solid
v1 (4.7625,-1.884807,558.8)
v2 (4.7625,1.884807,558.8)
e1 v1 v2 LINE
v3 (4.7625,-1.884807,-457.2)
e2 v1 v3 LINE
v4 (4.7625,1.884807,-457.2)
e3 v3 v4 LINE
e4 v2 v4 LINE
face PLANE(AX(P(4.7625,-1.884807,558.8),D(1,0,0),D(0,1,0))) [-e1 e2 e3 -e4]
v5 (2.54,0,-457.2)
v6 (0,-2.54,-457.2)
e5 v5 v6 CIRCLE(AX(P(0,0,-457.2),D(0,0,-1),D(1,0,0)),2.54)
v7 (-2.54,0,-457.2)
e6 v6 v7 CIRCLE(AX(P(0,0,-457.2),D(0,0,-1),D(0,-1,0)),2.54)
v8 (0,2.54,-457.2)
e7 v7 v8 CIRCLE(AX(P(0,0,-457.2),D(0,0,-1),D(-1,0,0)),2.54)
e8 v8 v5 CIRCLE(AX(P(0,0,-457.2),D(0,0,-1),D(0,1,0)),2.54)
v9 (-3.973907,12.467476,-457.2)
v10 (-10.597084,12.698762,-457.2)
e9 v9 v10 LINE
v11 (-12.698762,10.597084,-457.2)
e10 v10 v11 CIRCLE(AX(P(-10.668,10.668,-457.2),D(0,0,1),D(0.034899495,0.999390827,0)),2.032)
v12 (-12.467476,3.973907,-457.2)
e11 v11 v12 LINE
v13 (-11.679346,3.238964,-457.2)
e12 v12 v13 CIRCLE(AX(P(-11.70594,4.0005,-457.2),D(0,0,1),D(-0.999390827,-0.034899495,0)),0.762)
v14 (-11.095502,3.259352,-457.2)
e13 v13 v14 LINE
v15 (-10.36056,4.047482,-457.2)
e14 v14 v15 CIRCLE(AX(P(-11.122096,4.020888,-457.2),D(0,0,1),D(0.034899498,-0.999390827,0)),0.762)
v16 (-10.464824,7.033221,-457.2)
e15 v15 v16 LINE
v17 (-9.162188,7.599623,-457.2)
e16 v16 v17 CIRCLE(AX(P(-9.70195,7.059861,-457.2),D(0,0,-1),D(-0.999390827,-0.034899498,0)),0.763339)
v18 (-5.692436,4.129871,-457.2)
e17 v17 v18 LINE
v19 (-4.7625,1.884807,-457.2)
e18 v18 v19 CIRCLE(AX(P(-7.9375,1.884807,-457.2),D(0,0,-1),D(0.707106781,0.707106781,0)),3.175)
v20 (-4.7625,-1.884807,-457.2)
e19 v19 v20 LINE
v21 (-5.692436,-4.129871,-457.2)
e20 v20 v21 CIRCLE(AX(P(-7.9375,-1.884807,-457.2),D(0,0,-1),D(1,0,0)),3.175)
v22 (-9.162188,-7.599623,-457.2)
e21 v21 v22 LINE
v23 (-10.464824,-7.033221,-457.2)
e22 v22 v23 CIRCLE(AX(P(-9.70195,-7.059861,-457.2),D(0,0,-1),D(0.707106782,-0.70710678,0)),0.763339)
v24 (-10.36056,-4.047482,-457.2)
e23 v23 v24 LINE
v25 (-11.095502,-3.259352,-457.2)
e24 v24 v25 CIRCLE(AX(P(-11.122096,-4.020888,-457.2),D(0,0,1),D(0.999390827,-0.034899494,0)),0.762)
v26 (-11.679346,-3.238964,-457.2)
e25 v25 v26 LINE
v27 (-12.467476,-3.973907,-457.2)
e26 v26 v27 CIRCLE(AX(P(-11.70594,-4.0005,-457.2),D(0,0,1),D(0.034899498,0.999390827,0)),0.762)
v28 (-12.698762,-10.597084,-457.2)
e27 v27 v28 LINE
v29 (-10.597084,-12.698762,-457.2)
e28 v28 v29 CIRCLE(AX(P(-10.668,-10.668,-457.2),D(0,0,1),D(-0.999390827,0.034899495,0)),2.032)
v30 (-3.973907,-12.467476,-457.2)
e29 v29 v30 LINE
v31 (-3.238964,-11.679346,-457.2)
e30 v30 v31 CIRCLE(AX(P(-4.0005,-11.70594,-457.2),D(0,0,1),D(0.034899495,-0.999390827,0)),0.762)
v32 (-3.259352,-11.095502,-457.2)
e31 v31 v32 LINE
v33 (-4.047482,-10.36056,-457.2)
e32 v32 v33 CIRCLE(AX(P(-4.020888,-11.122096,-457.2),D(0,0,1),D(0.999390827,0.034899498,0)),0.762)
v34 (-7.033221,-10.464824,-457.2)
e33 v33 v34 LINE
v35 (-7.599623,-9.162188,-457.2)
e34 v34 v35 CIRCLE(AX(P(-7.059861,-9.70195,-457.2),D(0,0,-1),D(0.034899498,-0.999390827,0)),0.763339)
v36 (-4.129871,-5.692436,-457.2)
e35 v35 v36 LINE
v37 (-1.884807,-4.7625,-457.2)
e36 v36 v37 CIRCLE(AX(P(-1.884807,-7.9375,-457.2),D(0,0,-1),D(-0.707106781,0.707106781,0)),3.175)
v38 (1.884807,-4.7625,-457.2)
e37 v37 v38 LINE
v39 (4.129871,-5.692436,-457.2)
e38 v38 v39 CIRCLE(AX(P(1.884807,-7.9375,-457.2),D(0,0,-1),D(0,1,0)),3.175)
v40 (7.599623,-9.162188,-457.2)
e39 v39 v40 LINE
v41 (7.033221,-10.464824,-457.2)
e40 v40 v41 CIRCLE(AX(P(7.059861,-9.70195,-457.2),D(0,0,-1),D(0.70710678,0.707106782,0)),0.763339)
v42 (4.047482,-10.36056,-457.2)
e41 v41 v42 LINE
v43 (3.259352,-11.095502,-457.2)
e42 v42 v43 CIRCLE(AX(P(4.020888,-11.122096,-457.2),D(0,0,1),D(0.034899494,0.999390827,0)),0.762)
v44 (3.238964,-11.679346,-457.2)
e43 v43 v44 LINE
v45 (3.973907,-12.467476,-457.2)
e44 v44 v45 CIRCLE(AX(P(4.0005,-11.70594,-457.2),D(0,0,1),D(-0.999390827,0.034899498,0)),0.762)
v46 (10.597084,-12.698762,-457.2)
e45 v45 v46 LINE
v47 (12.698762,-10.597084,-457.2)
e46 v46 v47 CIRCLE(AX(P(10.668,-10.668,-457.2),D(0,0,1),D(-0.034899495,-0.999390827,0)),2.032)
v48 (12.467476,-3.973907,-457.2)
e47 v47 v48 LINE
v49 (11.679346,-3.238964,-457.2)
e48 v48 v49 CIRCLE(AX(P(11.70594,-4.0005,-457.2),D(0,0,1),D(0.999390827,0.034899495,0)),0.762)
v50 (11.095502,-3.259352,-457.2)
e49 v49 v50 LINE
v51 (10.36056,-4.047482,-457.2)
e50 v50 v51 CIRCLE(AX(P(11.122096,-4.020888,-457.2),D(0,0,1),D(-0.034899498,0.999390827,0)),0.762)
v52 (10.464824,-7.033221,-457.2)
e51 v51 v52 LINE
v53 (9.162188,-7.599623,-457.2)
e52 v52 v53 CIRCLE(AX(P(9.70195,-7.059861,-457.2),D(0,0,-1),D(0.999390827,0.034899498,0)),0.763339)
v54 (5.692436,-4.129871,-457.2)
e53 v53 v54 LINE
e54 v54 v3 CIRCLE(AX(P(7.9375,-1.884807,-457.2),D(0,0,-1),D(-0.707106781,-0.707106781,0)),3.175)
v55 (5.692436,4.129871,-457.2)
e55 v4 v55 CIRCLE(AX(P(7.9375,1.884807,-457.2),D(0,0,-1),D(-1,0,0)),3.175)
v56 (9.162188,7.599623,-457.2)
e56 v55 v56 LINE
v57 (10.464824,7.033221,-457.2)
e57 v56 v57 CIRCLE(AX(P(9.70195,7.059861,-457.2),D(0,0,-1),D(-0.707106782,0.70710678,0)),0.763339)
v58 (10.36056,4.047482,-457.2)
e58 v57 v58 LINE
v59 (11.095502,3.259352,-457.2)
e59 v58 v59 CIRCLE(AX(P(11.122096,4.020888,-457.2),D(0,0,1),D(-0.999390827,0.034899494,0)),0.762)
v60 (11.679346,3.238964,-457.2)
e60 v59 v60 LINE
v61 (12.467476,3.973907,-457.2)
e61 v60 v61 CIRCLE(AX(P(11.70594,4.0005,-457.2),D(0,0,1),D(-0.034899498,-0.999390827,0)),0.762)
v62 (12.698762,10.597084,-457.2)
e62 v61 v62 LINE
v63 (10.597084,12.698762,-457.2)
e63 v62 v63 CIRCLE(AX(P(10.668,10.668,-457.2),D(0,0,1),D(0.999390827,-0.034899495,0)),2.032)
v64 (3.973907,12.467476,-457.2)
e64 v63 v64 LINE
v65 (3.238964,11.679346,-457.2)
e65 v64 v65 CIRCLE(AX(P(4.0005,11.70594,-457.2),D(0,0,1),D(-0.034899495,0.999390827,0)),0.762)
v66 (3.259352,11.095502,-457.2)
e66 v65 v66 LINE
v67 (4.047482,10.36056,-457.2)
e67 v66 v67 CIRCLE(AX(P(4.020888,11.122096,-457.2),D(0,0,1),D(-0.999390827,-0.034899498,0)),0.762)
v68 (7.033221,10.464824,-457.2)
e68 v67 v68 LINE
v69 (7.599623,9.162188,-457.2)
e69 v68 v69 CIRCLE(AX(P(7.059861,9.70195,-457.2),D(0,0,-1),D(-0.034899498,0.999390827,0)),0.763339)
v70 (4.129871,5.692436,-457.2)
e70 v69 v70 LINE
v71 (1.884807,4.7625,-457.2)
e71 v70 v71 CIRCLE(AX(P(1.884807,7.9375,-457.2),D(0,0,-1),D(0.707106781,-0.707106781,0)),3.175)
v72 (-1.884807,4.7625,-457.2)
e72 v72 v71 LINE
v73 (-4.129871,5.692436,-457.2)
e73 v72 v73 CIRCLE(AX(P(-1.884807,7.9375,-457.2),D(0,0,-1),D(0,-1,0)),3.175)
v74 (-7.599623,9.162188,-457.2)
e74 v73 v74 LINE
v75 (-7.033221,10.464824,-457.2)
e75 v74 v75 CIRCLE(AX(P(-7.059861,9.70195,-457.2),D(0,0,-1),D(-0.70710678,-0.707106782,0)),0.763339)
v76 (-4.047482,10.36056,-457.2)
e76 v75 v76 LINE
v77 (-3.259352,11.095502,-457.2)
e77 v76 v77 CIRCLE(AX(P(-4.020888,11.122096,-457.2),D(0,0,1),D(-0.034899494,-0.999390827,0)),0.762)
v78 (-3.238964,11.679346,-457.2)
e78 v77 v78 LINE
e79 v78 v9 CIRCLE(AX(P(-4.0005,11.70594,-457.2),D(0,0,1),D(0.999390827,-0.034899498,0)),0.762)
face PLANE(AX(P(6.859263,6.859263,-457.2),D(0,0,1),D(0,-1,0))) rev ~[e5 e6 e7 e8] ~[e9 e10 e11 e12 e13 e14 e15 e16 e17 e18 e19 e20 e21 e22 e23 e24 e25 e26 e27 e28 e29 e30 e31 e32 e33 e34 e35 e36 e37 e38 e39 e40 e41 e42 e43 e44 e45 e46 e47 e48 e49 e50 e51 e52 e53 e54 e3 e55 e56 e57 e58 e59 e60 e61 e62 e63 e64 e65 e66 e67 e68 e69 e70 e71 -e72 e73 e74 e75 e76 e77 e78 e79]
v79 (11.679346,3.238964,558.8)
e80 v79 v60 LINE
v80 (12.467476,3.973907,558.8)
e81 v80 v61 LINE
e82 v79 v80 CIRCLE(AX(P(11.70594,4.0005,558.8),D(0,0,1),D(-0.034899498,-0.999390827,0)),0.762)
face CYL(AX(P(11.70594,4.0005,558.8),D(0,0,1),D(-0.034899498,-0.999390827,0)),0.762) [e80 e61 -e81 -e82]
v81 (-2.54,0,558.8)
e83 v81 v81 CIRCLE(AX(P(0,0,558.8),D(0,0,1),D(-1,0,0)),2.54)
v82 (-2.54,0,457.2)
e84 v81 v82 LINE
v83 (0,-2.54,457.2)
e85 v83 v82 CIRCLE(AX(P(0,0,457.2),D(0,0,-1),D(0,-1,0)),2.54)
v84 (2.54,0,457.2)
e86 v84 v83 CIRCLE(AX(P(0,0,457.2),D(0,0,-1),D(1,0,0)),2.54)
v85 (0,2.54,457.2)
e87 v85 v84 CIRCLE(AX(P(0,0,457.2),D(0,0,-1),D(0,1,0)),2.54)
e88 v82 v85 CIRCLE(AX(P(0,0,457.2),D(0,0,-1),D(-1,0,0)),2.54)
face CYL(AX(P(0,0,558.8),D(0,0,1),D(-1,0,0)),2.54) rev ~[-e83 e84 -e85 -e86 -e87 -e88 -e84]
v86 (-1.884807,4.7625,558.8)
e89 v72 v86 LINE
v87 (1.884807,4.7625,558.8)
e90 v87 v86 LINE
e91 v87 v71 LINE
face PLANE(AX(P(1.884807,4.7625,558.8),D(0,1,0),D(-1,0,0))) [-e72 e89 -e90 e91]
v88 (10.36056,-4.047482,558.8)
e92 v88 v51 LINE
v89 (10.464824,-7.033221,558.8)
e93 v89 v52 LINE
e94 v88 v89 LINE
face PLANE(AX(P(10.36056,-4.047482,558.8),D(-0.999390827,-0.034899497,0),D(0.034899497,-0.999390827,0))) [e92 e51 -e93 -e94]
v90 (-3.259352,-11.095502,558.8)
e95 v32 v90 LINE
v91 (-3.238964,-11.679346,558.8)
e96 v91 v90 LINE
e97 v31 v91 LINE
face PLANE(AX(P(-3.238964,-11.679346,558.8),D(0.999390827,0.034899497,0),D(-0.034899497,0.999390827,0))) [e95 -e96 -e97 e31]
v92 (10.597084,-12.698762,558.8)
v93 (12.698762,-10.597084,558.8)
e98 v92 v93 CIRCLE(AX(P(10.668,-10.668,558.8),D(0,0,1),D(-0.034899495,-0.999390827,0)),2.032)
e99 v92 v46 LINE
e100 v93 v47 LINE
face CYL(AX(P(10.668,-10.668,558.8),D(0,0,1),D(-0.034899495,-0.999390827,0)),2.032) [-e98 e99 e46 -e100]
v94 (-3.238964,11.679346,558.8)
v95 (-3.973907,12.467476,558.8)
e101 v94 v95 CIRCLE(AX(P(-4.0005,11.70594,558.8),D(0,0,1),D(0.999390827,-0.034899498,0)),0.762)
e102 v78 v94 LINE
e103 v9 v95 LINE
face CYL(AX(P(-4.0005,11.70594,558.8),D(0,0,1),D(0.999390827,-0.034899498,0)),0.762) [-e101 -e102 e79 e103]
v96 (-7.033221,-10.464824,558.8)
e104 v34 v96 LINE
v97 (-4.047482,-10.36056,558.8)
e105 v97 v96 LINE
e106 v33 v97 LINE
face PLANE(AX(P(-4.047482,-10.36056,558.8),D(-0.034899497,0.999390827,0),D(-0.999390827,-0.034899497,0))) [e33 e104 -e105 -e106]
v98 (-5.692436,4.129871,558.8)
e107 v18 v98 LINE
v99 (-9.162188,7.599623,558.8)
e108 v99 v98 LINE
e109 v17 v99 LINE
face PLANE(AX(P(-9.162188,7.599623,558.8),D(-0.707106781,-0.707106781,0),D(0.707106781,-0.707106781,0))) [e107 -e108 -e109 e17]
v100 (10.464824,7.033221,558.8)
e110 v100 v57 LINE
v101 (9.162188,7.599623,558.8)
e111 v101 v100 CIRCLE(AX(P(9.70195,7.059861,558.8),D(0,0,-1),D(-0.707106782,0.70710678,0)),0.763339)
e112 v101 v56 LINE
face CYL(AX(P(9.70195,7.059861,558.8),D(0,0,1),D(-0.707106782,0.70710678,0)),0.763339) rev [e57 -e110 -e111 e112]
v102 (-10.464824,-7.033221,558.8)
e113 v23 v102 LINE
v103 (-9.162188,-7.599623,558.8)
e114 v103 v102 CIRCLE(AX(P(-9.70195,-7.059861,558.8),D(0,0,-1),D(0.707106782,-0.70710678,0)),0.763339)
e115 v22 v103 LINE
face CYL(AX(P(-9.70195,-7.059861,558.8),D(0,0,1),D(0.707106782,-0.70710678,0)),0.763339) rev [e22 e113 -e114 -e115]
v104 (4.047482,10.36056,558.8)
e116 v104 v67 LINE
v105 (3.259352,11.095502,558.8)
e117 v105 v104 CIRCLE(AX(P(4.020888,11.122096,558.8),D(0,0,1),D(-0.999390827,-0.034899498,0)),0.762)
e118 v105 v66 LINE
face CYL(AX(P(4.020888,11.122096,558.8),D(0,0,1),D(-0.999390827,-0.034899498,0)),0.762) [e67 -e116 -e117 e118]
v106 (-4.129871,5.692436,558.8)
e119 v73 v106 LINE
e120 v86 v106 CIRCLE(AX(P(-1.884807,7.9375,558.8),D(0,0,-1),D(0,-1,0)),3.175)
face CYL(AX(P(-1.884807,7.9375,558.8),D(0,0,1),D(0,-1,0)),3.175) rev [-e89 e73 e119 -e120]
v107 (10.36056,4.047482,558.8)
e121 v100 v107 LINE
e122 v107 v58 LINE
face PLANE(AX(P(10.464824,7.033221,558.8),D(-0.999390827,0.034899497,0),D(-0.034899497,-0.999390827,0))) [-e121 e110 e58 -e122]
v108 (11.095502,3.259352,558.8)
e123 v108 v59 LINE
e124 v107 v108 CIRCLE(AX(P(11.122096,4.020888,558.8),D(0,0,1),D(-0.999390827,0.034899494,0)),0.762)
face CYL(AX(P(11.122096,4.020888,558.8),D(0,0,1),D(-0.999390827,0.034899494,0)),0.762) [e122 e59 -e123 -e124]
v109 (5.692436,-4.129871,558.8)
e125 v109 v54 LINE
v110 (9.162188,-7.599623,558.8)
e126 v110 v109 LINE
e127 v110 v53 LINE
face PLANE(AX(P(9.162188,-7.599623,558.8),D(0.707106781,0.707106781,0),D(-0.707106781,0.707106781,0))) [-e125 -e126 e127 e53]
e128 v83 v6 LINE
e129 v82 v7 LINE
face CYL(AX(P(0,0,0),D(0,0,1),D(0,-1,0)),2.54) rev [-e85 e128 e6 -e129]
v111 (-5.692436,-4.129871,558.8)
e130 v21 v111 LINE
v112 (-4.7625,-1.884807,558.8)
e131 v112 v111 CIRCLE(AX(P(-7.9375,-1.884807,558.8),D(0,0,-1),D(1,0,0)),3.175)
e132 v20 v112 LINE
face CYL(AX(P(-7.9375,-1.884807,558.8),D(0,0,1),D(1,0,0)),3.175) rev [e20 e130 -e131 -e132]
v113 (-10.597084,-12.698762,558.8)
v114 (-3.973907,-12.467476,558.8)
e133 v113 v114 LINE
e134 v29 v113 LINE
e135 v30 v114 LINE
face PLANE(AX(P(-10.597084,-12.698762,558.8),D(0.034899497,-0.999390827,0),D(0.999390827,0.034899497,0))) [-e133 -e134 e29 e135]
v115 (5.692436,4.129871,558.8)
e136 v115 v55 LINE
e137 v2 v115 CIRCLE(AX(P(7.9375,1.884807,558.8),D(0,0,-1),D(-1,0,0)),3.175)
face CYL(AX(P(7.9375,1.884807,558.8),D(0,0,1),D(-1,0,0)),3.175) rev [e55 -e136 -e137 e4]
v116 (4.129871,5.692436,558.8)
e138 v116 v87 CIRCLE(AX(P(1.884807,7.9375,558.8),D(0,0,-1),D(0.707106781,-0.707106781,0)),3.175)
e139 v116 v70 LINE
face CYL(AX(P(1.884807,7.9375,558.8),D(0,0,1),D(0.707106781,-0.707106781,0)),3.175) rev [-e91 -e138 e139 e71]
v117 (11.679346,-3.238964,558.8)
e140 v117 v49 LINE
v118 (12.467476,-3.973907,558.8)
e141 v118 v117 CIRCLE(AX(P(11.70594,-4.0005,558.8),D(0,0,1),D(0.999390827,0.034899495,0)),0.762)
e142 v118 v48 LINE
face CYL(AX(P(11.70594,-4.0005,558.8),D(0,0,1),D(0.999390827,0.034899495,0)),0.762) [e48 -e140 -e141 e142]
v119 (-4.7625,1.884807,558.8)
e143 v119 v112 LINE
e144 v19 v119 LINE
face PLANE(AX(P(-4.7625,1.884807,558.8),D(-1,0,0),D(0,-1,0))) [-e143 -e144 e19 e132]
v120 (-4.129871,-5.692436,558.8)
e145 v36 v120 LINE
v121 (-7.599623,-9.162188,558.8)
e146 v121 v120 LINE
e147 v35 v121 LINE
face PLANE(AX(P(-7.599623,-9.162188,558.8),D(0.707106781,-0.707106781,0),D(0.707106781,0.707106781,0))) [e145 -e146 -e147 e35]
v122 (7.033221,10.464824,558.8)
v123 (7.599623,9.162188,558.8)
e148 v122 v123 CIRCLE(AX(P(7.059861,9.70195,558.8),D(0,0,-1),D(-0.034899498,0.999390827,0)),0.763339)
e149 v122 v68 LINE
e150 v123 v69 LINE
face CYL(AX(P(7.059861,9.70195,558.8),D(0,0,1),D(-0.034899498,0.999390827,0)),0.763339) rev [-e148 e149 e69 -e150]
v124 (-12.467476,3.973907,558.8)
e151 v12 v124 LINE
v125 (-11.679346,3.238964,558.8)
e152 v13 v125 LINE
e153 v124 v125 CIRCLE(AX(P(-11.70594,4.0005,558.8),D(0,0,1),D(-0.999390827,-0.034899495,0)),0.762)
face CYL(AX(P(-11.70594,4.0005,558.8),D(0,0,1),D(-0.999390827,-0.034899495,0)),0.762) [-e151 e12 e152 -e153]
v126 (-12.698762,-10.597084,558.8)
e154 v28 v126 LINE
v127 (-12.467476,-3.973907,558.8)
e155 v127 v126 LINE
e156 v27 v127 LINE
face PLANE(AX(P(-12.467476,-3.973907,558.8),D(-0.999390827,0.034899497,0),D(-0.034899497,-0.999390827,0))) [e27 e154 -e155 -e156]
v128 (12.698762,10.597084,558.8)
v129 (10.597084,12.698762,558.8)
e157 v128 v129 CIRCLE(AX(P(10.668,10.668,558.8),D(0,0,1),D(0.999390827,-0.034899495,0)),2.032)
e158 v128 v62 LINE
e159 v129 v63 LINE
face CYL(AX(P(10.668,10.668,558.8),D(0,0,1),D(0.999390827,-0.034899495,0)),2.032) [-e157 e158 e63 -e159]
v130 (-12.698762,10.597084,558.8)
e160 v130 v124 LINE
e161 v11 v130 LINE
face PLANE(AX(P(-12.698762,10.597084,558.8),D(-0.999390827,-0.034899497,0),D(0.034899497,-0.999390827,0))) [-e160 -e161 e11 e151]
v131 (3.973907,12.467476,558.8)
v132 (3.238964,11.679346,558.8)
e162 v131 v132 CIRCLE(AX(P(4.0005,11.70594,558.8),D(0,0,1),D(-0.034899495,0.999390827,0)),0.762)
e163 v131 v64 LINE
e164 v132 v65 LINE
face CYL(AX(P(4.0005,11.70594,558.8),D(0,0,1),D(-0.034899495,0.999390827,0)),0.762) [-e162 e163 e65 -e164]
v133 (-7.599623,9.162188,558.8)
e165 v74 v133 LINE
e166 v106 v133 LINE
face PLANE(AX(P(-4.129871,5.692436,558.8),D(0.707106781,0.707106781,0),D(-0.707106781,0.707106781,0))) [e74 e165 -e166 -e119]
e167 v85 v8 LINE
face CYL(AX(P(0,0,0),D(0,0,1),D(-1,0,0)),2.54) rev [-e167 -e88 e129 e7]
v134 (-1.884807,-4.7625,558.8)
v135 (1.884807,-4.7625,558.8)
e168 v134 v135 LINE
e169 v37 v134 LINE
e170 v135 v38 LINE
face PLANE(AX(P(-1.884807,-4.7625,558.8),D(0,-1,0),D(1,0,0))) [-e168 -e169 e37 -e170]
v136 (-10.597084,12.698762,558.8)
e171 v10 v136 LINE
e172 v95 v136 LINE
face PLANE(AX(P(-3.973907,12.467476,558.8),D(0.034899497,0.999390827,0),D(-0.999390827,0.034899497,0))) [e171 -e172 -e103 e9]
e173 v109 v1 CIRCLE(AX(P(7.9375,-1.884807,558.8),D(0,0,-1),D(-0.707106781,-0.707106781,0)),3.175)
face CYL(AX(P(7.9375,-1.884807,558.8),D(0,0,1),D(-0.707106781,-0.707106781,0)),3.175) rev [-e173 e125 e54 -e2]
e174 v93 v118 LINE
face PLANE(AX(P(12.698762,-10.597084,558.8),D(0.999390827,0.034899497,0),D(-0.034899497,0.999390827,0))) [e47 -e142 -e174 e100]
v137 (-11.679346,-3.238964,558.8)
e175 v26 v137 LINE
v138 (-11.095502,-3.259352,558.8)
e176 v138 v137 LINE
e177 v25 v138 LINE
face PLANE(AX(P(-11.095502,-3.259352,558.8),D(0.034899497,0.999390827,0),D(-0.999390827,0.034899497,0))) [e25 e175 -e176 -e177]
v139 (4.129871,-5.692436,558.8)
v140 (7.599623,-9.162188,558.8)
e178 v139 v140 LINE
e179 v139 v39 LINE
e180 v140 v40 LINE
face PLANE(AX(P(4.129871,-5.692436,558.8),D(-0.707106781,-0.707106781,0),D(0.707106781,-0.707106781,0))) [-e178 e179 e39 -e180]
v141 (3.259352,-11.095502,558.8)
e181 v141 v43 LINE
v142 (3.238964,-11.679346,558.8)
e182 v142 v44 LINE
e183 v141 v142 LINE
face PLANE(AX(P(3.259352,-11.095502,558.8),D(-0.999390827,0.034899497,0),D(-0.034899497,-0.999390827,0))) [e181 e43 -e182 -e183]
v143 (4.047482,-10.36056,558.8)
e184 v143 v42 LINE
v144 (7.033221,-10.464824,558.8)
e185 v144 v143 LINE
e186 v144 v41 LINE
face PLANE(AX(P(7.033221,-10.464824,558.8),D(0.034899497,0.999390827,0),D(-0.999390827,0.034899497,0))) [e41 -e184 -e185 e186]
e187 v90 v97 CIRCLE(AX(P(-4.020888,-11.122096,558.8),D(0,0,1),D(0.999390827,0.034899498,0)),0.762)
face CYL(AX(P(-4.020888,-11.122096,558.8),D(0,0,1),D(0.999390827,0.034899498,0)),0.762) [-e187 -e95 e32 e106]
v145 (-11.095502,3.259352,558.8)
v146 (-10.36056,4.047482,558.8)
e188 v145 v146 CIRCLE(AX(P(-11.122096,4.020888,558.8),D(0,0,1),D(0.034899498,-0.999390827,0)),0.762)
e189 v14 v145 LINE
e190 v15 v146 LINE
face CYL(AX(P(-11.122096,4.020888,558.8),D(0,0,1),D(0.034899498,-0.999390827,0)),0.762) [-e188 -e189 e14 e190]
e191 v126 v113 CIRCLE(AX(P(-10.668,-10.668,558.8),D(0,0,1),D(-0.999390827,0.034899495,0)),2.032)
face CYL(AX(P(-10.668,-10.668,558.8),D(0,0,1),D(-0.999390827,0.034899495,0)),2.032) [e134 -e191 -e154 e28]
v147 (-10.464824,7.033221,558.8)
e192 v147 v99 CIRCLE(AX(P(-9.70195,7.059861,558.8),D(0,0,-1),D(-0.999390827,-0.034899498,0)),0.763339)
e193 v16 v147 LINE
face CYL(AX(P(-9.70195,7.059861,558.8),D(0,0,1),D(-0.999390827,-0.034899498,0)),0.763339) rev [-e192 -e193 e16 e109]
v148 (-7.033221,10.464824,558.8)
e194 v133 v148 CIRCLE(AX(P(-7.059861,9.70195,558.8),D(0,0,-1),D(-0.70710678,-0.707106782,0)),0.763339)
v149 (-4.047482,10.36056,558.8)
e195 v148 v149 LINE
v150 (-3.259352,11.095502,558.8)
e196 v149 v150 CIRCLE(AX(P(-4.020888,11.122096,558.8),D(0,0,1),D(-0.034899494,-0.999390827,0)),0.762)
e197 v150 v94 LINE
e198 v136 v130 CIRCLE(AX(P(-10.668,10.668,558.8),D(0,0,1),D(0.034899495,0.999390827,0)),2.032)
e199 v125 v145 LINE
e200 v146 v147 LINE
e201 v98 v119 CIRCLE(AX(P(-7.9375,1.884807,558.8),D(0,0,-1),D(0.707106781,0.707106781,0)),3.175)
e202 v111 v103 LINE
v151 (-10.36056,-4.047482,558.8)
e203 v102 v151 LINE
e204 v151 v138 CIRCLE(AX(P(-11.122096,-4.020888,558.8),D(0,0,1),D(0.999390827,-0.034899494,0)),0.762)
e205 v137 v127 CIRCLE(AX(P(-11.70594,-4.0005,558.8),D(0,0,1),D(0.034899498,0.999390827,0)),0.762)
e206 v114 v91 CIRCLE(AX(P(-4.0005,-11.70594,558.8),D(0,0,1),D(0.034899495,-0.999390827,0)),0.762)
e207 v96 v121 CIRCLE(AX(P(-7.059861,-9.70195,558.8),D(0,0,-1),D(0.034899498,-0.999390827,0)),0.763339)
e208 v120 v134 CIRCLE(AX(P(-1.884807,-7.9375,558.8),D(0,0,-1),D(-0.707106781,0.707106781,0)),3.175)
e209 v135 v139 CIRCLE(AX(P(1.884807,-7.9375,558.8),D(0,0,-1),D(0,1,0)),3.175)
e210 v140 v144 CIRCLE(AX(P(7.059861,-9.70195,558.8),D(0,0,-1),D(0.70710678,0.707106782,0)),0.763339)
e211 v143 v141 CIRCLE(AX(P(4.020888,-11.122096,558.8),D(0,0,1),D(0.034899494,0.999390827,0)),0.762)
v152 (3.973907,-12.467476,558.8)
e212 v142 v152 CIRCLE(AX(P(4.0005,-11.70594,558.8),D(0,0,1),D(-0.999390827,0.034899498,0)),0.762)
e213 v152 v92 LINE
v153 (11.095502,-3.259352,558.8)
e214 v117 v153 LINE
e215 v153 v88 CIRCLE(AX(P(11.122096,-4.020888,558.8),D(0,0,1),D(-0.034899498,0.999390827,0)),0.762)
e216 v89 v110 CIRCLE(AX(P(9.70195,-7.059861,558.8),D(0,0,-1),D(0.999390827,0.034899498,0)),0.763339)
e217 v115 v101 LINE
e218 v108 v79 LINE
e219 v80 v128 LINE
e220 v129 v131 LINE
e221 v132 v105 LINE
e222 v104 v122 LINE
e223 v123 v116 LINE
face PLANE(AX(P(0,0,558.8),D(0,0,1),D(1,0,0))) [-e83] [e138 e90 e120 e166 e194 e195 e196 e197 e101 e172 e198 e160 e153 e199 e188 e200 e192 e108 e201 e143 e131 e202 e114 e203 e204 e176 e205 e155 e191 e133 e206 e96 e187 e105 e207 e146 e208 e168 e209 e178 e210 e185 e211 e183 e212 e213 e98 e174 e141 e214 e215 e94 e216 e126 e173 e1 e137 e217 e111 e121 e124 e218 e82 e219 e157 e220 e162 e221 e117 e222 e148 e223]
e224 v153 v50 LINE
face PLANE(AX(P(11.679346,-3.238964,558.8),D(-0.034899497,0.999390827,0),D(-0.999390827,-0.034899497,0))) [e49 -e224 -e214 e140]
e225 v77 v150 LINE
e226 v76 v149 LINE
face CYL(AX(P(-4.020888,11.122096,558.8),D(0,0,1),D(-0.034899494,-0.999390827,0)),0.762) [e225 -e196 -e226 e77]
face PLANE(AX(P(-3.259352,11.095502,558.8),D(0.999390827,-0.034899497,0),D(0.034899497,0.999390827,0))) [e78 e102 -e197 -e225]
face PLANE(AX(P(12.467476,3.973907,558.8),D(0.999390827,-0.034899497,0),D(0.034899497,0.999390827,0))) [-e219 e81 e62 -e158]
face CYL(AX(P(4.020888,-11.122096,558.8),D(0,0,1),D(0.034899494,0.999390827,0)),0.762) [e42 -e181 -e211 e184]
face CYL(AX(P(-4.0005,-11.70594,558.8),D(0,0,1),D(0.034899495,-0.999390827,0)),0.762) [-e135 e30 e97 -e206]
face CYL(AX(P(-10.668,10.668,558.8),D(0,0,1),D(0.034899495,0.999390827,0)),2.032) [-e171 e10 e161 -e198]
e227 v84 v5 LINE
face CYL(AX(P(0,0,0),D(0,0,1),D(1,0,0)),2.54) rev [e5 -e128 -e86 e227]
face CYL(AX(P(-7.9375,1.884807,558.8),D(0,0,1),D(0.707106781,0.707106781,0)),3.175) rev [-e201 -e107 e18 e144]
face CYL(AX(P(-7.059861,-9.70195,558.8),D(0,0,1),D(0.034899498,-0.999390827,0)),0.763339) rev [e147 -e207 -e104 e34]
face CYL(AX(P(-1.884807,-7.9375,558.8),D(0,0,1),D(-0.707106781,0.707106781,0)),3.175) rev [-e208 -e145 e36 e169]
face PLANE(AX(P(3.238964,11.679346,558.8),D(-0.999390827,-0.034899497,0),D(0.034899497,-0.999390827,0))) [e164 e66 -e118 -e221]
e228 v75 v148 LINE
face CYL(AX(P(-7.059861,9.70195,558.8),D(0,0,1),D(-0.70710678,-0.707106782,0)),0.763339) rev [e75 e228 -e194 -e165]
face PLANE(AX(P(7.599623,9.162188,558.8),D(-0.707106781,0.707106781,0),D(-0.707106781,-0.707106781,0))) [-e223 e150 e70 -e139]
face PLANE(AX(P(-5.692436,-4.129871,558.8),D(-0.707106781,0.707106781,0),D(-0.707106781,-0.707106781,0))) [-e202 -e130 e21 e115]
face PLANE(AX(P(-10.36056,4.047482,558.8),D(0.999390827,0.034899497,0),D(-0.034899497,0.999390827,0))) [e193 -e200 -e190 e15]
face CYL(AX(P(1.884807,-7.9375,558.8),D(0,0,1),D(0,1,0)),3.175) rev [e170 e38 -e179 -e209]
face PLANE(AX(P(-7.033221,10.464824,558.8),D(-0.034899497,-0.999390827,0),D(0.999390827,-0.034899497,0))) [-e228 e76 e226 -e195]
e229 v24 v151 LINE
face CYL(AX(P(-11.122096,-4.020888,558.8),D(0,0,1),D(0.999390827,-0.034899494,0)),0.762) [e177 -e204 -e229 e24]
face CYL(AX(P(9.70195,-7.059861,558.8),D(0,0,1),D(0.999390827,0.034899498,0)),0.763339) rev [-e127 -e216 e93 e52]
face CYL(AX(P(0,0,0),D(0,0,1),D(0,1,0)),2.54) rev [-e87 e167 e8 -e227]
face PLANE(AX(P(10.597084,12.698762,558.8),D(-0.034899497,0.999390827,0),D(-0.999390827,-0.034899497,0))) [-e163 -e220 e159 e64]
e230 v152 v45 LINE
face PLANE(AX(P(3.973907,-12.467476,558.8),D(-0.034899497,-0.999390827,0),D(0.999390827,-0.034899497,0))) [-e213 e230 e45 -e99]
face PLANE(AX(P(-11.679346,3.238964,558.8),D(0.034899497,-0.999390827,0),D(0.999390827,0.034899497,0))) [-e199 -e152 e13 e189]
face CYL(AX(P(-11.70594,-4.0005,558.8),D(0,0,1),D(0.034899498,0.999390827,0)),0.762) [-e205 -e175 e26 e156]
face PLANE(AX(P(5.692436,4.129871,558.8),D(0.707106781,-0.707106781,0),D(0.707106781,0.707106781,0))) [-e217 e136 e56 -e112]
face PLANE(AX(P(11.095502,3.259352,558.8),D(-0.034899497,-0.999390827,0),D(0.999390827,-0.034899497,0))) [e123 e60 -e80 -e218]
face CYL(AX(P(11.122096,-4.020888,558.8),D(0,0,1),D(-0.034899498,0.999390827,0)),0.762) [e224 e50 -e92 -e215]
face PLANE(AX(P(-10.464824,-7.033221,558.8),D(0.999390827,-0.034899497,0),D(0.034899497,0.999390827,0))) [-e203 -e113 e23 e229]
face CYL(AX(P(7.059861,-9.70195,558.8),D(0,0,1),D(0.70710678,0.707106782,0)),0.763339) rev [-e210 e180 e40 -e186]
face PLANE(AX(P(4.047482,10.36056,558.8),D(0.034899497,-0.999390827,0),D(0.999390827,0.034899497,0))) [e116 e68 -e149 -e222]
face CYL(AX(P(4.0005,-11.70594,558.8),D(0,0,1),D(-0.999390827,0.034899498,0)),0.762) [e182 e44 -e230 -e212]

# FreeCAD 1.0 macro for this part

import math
import FreeCAD as App
import Part
import Sketcher
Q = App.Units.Quantity

doc = App.newDocument("Part")
params = doc.addObject("Spreadsheet::Sheet", "Params")
for row, (alias, value) in enumerate([
    ("sketch1_radius", "0.1 in"),
    ("sketch1_radius2", "0.03 in"),
    ("sketch1_radius3", "0.08 in"),
    ("sketch1_radius4", "0.125 in"),
    ("sketch1_length", "0.023 in"),
    ("pad1_length", "36 in"),
    ("sketch2_diameter", "0.2 in"),
    ("sketch2_radius", "0.03 in"),
    ("sketch2_radius2", "0.08 in"),
    ("sketch2_radius3", "0.125 in"),
    ("sketch2_length", "0.023 in"),
    ("pad2_length", "4 in"),
], start=1):
    params.set(f"A{row}", alias)
    params.set(f"B{row}", "=" + value)
    params.setAlias(f"B{row}", alias)

body = doc.addObject("PartDesign::Body", "Body")

# Sketch on XY plane
sketch1 = body.newObject("Sketcher::SketchObject", "Sketch")
sketch1.AttachmentSupport = (doc.getObject("XY_Plane"), [""])
sketch1.MapMode = "FlatFace"
sketch1.addGeometry([
    Part.LineSegment(App.Vector(0, 4.7625, 0), App.Vector(-1.884807, 4.7625, 0)),  # 0
    Part.ArcOfCircle(Part.Circle(App.Vector(-1.884807, 7.9375, 0), App.Vector(0, 0, 1), 3.175), math.radians(-135), math.radians(-90)),  # 1
    Part.LineSegment(App.Vector(-4.129871, 5.692436, 0), App.Vector(-7.599623, 9.162188, 0)),  # 2
    Part.ArcOfCircle(Part.Circle(App.Vector(-7.059861, 9.70195, 0), App.Vector(0, 0, 1), 0.763339), math.radians(88), math.radians(225)),  # 3
    Part.LineSegment(App.Vector(-7.033221, 10.464824, 0), App.Vector(-4.047482, 10.36056, 0)),  # 4
    Part.ArcOfCircle(Part.Circle(App.Vector(-4.020888, 11.122096, 0), App.Vector(0, 0, 1), 0.762), math.radians(-92), math.radians(-2)),  # 5
    Part.LineSegment(App.Vector(-3.259352, 11.095502, 0), App.Vector(-3.238964, 11.679346, 0)),  # 6
    Part.ArcOfCircle(Part.Circle(App.Vector(-4.0005, 11.70594, 0), App.Vector(0, 0, 1), 0.762), math.radians(-2), math.radians(88)),  # 7
    Part.LineSegment(App.Vector(-3.973907, 12.467476, 0), App.Vector(-10.597084, 12.698762, 0)),  # 8
    Part.ArcOfCircle(Part.Circle(App.Vector(-10.668, 10.668, 0), App.Vector(0, 0, 1), 2.032), math.radians(88), math.radians(182)),  # 9
    Part.LineSegment(App.Vector(-12.698762, 10.597084, 0), App.Vector(-12.467476, 3.973907, 0)),  # 10
    Part.ArcOfCircle(Part.Circle(App.Vector(-11.70594, 4.0005, 0), App.Vector(0, 0, 1), 0.762), math.radians(-178), math.radians(-88)),  # 11
    Part.LineSegment(App.Vector(-11.679346, 3.238964, 0), App.Vector(-11.095502, 3.259352, 0)),  # 12
    Part.ArcOfCircle(Part.Circle(App.Vector(-11.122096, 4.020888, 0), App.Vector(0, 0, 1), 0.762), math.radians(-88), math.radians(2)),  # 13
    Part.LineSegment(App.Vector(-10.36056, 4.047482, 0), App.Vector(-10.464824, 7.033221, 0)),  # 14
    Part.ArcOfCircle(Part.Circle(App.Vector(-9.70195, 7.059861, 0), App.Vector(0, 0, 1), 0.763339), math.radians(45), math.radians(182)),  # 15
    Part.LineSegment(App.Vector(-9.162188, 7.599623, 0), App.Vector(-5.692436, 4.129871, 0)),  # 16
    Part.ArcOfCircle(Part.Circle(App.Vector(-7.9375, 1.884807, 0), App.Vector(0, 0, 1), 3.175), math.radians(0), math.radians(45)),  # 17
    Part.LineSegment(App.Vector(-4.7625, 1.884807, 0), App.Vector(-4.7625, 0, 0)),  # 18
    Part.LineSegment(App.Vector(-4.7625, 0, 0), App.Vector(-2.54, 0, 0)),  # 19
    Part.ArcOfCircle(Part.Circle(App.Vector(0, 0, 0), App.Vector(0, 0, 1), 2.54), math.radians(90), math.radians(180)),  # 20
    Part.LineSegment(App.Vector(0, 2.54, 0), App.Vector(0, 4.7625, 0)),  # 21
], False)
sketch1.addConstraint([
    Sketcher.Constraint("Tangent", 0, 2, 1, 2),
    Sketcher.Constraint("Tangent", 1, 1, 2, 1),
    Sketcher.Constraint("Tangent", 2, 2, 3, 2),
    Sketcher.Constraint("Tangent", 3, 1, 4, 1),
    Sketcher.Constraint("Tangent", 4, 2, 5, 1),
    Sketcher.Constraint("Tangent", 5, 2, 6, 1),
    Sketcher.Constraint("Tangent", 6, 2, 7, 1),
    Sketcher.Constraint("Tangent", 7, 2, 8, 1),
    Sketcher.Constraint("Tangent", 8, 2, 9, 1),
    Sketcher.Constraint("Tangent", 9, 2, 10, 1),
    Sketcher.Constraint("Tangent", 10, 2, 11, 1),
    Sketcher.Constraint("Tangent", 11, 2, 12, 1),
    Sketcher.Constraint("Tangent", 12, 2, 13, 1),
    Sketcher.Constraint("Tangent", 13, 2, 14, 1),
    Sketcher.Constraint("Tangent", 14, 2, 15, 2),
    Sketcher.Constraint("Tangent", 15, 1, 16, 1),
    Sketcher.Constraint("Tangent", 16, 2, 17, 2),
    Sketcher.Constraint("Tangent", 17, 1, 18, 1),
    Sketcher.Constraint("Coincident", 18, 2, 19, 1),
    Sketcher.Constraint("Coincident", 19, 2, 20, 2),
    Sketcher.Constraint("Coincident", 20, 1, 21, 1),
    Sketcher.Constraint("Coincident", 21, 2, 0, 1),
    Sketcher.Constraint("Horizontal", 0),
    Sketcher.Constraint("Vertical", 18),
    Sketcher.Constraint("Horizontal", 19),
    Sketcher.Constraint("Vertical", 21),
    Sketcher.Constraint("Coincident", 20, 3, -1, 1),
    Sketcher.Constraint("Equal", 5, 7),
    Sketcher.Constraint("Equal", 7, 11),
    Sketcher.Constraint("Equal", 11, 13),
    Sketcher.Constraint("Equal", 3, 15),
    Sketcher.Constraint("Equal", 1, 17),
    Sketcher.Constraint("PointOnObject", 18, 2, -1),
    Sketcher.Constraint("PointOnObject", 20, 1, -2),
    Sketcher.Constraint("Perpendicular", 4, 6),
    Sketcher.Constraint("Perpendicular", 6, 8),
    Sketcher.Constraint("Perpendicular", 10, 12),
    Sketcher.Constraint("Perpendicular", 12, 14),
    Sketcher.Constraint("Parallel", 2, 16),
    Sketcher.Constraint("Equal", 0, 18),
    Sketcher.Constraint("Equal", 19, 21),
    Sketcher.Constraint("Equal", 8, 10),
    Sketcher.Constraint("Equal", 6, 12),
    Sketcher.Constraint("Equal", 4, 14),
    Sketcher.Constraint("Equal", 2, 16),
    Sketcher.Constraint("Radius", 20, Q("0.1 in")),
    Sketcher.Constraint("Radius", 5, Q("0.03 in")),
    Sketcher.Constraint("Radius", 9, Q("0.08 in")),
    Sketcher.Constraint("Angle", 2, Q("135 deg")),
    Sketcher.Constraint("Angle", 4, Q("-2 deg")),
    Sketcher.Constraint("Radius", 1, Q("0.125 in")),
    Sketcher.Constraint("DistanceX", 9, 3, -1, 1, Q("0.42 in")),
    Sketcher.Constraint("Distance", 6, Q("0.023 in")),
    Sketcher.Constraint("DistanceX", 19, 1, 19, 2, Q("0.0875 in")),
    Sketcher.Constraint("Radius", 3, 0.763339),
    Sketcher.Constraint("DistanceY", 11, 3, 1, 3, Q("0.155 in")),
    Sketcher.Constraint("DistanceY", 15, 3, 8, 2, 5.638901),
])
sketch1.setExpression("Constraints[45]", "Params.sketch1_radius")
sketch1.setExpression("Constraints[46]", "Params.sketch1_radius2")
sketch1.setExpression("Constraints[47]", "Params.sketch1_radius3")
sketch1.setExpression("Constraints[50]", "Params.sketch1_radius4")
sketch1.setExpression("Constraints[52]", "Params.sketch1_length")
pad1 = body.newObject("PartDesign::Pad", "Pad")
pad1.Profile = sketch1
pad1.setExpression("Length", "Params.pad1_length")
pad1.Midplane = True
doc.recompute()

polarpattern = body.newObject("PartDesign::PolarPattern", "PolarPattern")
polarpattern.Originals = [pad1]
polarpattern.Axis = (doc.getObject("Z_Axis"), [""])
polarpattern.Angle = 360
polarpattern.Occurrences = 4
body.Tip = polarpattern

# Sketch on XY plane
sketch2 = body.newObject("Sketcher::SketchObject", "Sketch001")
sketch2.AttachmentSupport = (doc.getObject("XY_Plane"), [""])
sketch2.MapMode = "FlatFace"
sketch2.AttachmentOffset = App.Placement(App.Vector(0, 0, 22 * 25.4), App.Rotation())
sketch2.addGeometry([
    Part.LineSegment(App.Vector(1.884807, 4.7625, 0), App.Vector(-1.884807, 4.7625, 0)),  # 0
    Part.ArcOfCircle(Part.Circle(App.Vector(-1.884807, 7.9375, 0), App.Vector(0, 0, 1), 3.175), math.radians(-135), math.radians(-90)),  # 1
    Part.LineSegment(App.Vector(-4.129871, 5.692436, 0), App.Vector(-7.599623, 9.162188, 0)),  # 2
    Part.ArcOfCircle(Part.Circle(App.Vector(-7.059861, 9.70195, 0), App.Vector(0, 0, 1), 0.763339), math.radians(88), math.radians(225)),  # 3
    Part.LineSegment(App.Vector(-7.033221, 10.464824, 0), App.Vector(-4.047482, 10.36056, 0)),  # 4
    Part.ArcOfCircle(Part.Circle(App.Vector(-4.020888, 11.122096, 0), App.Vector(0, 0, 1), 0.762), math.radians(-92), math.radians(-2)),  # 5
    Part.LineSegment(App.Vector(-3.259352, 11.095502, 0), App.Vector(-3.238964, 11.679346, 0)),  # 6
    Part.ArcOfCircle(Part.Circle(App.Vector(-4.0005, 11.70594, 0), App.Vector(0, 0, 1), 0.762), math.radians(-2), math.radians(88)),  # 7
    Part.LineSegment(App.Vector(-3.973907, 12.467476, 0), App.Vector(-10.597084, 12.698762, 0)),  # 8
    Part.ArcOfCircle(Part.Circle(App.Vector(-10.668, 10.668, 0), App.Vector(0, 0, 1), 2.032), math.radians(88), math.radians(182)),  # 9
    Part.LineSegment(App.Vector(-12.698762, 10.597084, 0), App.Vector(-12.467476, 3.973907, 0)),  # 10
    Part.ArcOfCircle(Part.Circle(App.Vector(-11.70594, 4.0005, 0), App.Vector(0, 0, 1), 0.762), math.radians(-178), math.radians(-88)),  # 11
    Part.LineSegment(App.Vector(-11.679346, 3.238964, 0), App.Vector(-11.095502, 3.259352, 0)),  # 12
    Part.ArcOfCircle(Part.Circle(App.Vector(-11.122096, 4.020888, 0), App.Vector(0, 0, 1), 0.762), math.radians(-88), math.radians(2)),  # 13
    Part.LineSegment(App.Vector(-10.36056, 4.047482, 0), App.Vector(-10.464824, 7.033221, 0)),  # 14
    Part.ArcOfCircle(Part.Circle(App.Vector(-9.70195, 7.059861, 0), App.Vector(0, 0, 1), 0.763339), math.radians(45), math.radians(182)),  # 15
    Part.LineSegment(App.Vector(-9.162188, 7.599623, 0), App.Vector(-5.692436, 4.129871, 0)),  # 16
    Part.ArcOfCircle(Part.Circle(App.Vector(-7.9375, 1.884807, 0), App.Vector(0, 0, 1), 3.175), math.radians(0), math.radians(45)),  # 17
    Part.LineSegment(App.Vector(-4.7625, 1.884807, 0), App.Vector(-4.7625, -1.884807, 0)),  # 18
    Part.ArcOfCircle(Part.Circle(App.Vector(-7.9375, -1.884807, 0), App.Vector(0, 0, 1), 3.175), math.radians(-45), math.radians(0)),  # 19
    Part.LineSegment(App.Vector(-5.692436, -4.129871, 0), App.Vector(-9.162188, -7.599623, 0)),  # 20
    Part.ArcOfCircle(Part.Circle(App.Vector(-9.70195, -7.059861, 0), App.Vector(0, 0, 1), 0.763339), math.radians(178), math.radians(315)),  # 21
    Part.LineSegment(App.Vector(-10.464824, -7.033221, 0), App.Vector(-10.36056, -4.047482, 0)),  # 22
    Part.ArcOfCircle(Part.Circle(App.Vector(-11.122096, -4.020888, 0), App.Vector(0, 0, 1), 0.762), math.radians(-2), math.radians(88)),  # 23
    Part.LineSegment(App.Vector(-11.095502, -3.259352, 0), App.Vector(-11.679346, -3.238964, 0)),  # 24
    Part.ArcOfCircle(Part.Circle(App.Vector(-11.70594, -4.0005, 0), App.Vector(0, 0, 1), 0.762), math.radians(88), math.radians(178)),  # 25
    Part.LineSegment(App.Vector(-12.467476, -3.973907, 0), App.Vector(-12.698762, -10.597084, 0)),  # 26
    Part.ArcOfCircle(Part.Circle(App.Vector(-10.668, -10.668, 0), App.Vector(0, 0, 1), 2.032), math.radians(178), math.radians(272)),  # 27
    Part.LineSegment(App.Vector(-10.597084, -12.698762, 0), App.Vector(-3.973907, -12.467476, 0)),  # 28
    Part.ArcOfCircle(Part.Circle(App.Vector(-4.0005, -11.70594, 0), App.Vector(0, 0, 1), 0.762), math.radians(-88), math.radians(2)),  # 29
    Part.LineSegment(App.Vector(-3.238964, -11.679346, 0), App.Vector(-3.259352, -11.095502, 0)),  # 30
    Part.ArcOfCircle(Part.Circle(App.Vector(-4.020888, -11.122096, 0), App.Vector(0, 0, 1), 0.762), math.radians(2), math.radians(92)),  # 31
    Part.LineSegment(App.Vector(-4.047482, -10.36056, 0), App.Vector(-7.033221, -10.464824, 0)),  # 32
    Part.ArcOfCircle(Part.Circle(App.Vector(-7.059861, -9.70195, 0), App.Vector(0, 0, 1), 0.763339), math.radians(135), math.radians(272)),  # 33
    Part.LineSegment(App.Vector(-7.599623, -9.162188, 0), App.Vector(-4.129871, -5.692436, 0)),  # 34
    Part.ArcOfCircle(Part.Circle(App.Vector(-1.884807, -7.9375, 0), App.Vector(0, 0, 1), 3.175), math.radians(90), math.radians(135)),  # 35
    Part.LineSegment(App.Vector(-1.884807, -4.7625, 0), App.Vector(1.884807, -4.7625, 0)),  # 36
    Part.ArcOfCircle(Part.Circle(App.Vector(1.884807, -7.9375, 0), App.Vector(0, 0, 1), 3.175), math.radians(45), math.radians(90)),  # 37
    Part.LineSegment(App.Vector(4.129871, -5.692436, 0), App.Vector(7.599623, -9.162188, 0)),  # 38
    Part.ArcOfCircle(Part.Circle(App.Vector(7.059861, -9.70195, 0), App.Vector(0, 0, 1), 0.763339), math.radians(-92), math.radians(45)),  # 39
    Part.LineSegment(App.Vector(7.033221, -10.464824, 0), App.Vector(4.047482, -10.36056, 0)),  # 40
    Part.ArcOfCircle(Part.Circle(App.Vector(4.020888, -11.122096, 0), App.Vector(0, 0, 1), 0.762), math.radians(88), math.radians(178)),  # 41
    Part.LineSegment(App.Vector(3.259352, -11.095502, 0), App.Vector(3.238964, -11.679346, 0)),  # 42
    Part.ArcOfCircle(Part.Circle(App.Vector(4.0005, -11.70594, 0), App.Vector(0, 0, 1), 0.762), math.radians(178), math.radians(268)),  # 43
    Part.LineSegment(App.Vector(3.973907, -12.467476, 0), App.Vector(10.597084, -12.698762, 0)),  # 44
    Part.ArcOfCircle(Part.Circle(App.Vector(10.668, -10.668, 0), App.Vector(0, 0, 1), 2.032), math.radians(-92), math.radians(2)),  # 45
    Part.LineSegment(App.Vector(12.698762, -10.597084, 0), App.Vector(12.467476, -3.973907, 0)),  # 46
    Part.ArcOfCircle(Part.Circle(App.Vector(11.70594, -4.0005, 0), App.Vector(0, 0, 1), 0.762), math.radians(2), math.radians(92)),  # 47
    Part.LineSegment(App.Vector(11.679346, -3.238964, 0), App.Vector(11.095502, -3.259352, 0)),  # 48
    Part.ArcOfCircle(Part.Circle(App.Vector(11.122096, -4.020888, 0), App.Vector(0, 0, 1), 0.762), math.radians(92), math.radians(182)),  # 49
    Part.LineSegment(App.Vector(10.36056, -4.047482, 0), App.Vector(10.464824, -7.033221, 0)),  # 50
    Part.ArcOfCircle(Part.Circle(App.Vector(9.70195, -7.059861, 0), App.Vector(0, 0, 1), 0.763339), math.radians(-135), math.radians(2)),  # 51
    Part.LineSegment(App.Vector(9.162188, -7.599623, 0), App.Vector(5.692436, -4.129871, 0)),  # 52
    Part.ArcOfCircle(Part.Circle(App.Vector(7.9375, -1.884807, 0), App.Vector(0, 0, 1), 3.175), math.radians(180), math.radians(225)),  # 53
    Part.LineSegment(App.Vector(4.7625, -1.884807, 0), App.Vector(4.7625, 1.884807, 0)),  # 54
    Part.ArcOfCircle(Part.Circle(App.Vector(7.9375, 1.884807, 0), App.Vector(0, 0, 1), 3.175), math.radians(135), math.radians(180)),  # 55
    Part.LineSegment(App.Vector(5.692436, 4.129871, 0), App.Vector(9.162188, 7.599623, 0)),  # 56
    Part.ArcOfCircle(Part.Circle(App.Vector(9.70195, 7.059861, 0), App.Vector(0, 0, 1), 0.763339), math.radians(-2), math.radians(135)),  # 57
    Part.LineSegment(App.Vector(10.464824, 7.033221, 0), App.Vector(10.36056, 4.047482, 0)),  # 58
    Part.ArcOfCircle(Part.Circle(App.Vector(11.122096, 4.020888, 0), App.Vector(0, 0, 1), 0.762), math.radians(178), math.radians(268)),  # 59
    Part.LineSegment(App.Vector(11.095502, 3.259352, 0), App.Vector(11.679346, 3.238964, 0)),  # 60
    Part.ArcOfCircle(Part.Circle(App.Vector(11.70594, 4.0005, 0), App.Vector(0, 0, 1), 0.762), math.radians(-92), math.radians(-2)),  # 61
    Part.LineSegment(App.Vector(12.467476, 3.973907, 0), App.Vector(12.698762, 10.597084, 0)),  # 62
    Part.ArcOfCircle(Part.Circle(App.Vector(10.668, 10.668, 0), App.Vector(0, 0, 1), 2.032), math.radians(-2), math.radians(92)),  # 63
    Part.LineSegment(App.Vector(10.597084, 12.698762, 0), App.Vector(3.973907, 12.467476, 0)),  # 64
    Part.ArcOfCircle(Part.Circle(App.Vector(4.0005, 11.70594, 0), App.Vector(0, 0, 1), 0.762), math.radians(92), math.radians(182)),  # 65
    Part.LineSegment(App.Vector(3.238964, 11.679346, 0), App.Vector(3.259352, 11.095502, 0)),  # 66
    Part.ArcOfCircle(Part.Circle(App.Vector(4.020888, 11.122096, 0), App.Vector(0, 0, 1), 0.762), math.radians(-178), math.radians(-88)),  # 67
    Part.LineSegment(App.Vector(4.047482, 10.36056, 0), App.Vector(7.033221, 10.464824, 0)),  # 68
    Part.ArcOfCircle(Part.Circle(App.Vector(7.059861, 9.70195, 0), App.Vector(0, 0, 1), 0.763339), math.radians(-45), math.radians(92)),  # 69
    Part.LineSegment(App.Vector(7.599623, 9.162188, 0), App.Vector(4.129871, 5.692436, 0)),  # 70
    Part.ArcOfCircle(Part.Circle(App.Vector(1.884807, 7.9375, 0), App.Vector(0, 0, 1), 3.175), math.radians(-90), math.radians(-45)),  # 71
    Part.Circle(App.Vector(0, 0, 0), App.Vector(0, 0, 1), 2.54),  # 72
], False)
sketch2.addConstraint([
    Sketcher.Constraint("Tangent", 0, 2, 1, 2),
    Sketcher.Constraint("Tangent", 1, 1, 2, 1),
    Sketcher.Constraint("Tangent", 2, 2, 3, 2),
    Sketcher.Constraint("Tangent", 3, 1, 4, 1),
    Sketcher.Constraint("Tangent", 4, 2, 5, 1),
    Sketcher.Constraint("Tangent", 5, 2, 6, 1),
    Sketcher.Constraint("Tangent", 6, 2, 7, 1),
    Sketcher.Constraint("Tangent", 7, 2, 8, 1),
    Sketcher.Constraint("Tangent", 8, 2, 9, 1),
    Sketcher.Constraint("Tangent", 9, 2, 10, 1),
    Sketcher.Constraint("Tangent", 10, 2, 11, 1),
    Sketcher.Constraint("Tangent", 11, 2, 12, 1),
    Sketcher.Constraint("Tangent", 12, 2, 13, 1),
    Sketcher.Constraint("Tangent", 13, 2, 14, 1),
    Sketcher.Constraint("Tangent", 14, 2, 15, 2),
    Sketcher.Constraint("Tangent", 15, 1, 16, 1),
    Sketcher.Constraint("Tangent", 16, 2, 17, 2),
    Sketcher.Constraint("Tangent", 17, 1, 18, 1),
    Sketcher.Constraint("Tangent", 18, 2, 19, 2),
    Sketcher.Constraint("Tangent", 19, 1, 20, 1),
    Sketcher.Constraint("Tangent", 20, 2, 21, 2),
    Sketcher.Constraint("Tangent", 21, 1, 22, 1),
    Sketcher.Constraint("Tangent", 22, 2, 23, 1),
    Sketcher.Constraint("Tangent", 23, 2, 24, 1),
    Sketcher.Constraint("Tangent", 24, 2, 25, 1),
    Sketcher.Constraint("Tangent", 25, 2, 26, 1),
    Sketcher.Constraint("Tangent", 26, 2, 27, 1),
    Sketcher.Constraint("Tangent", 27, 2, 28, 1),
    Sketcher.Constraint("Tangent", 28, 2, 29, 1),
    Sketcher.Constraint("Tangent", 29, 2, 30, 1),
    Sketcher.Constraint("Tangent", 30, 2, 31, 1),
    Sketcher.Constraint("Tangent", 31, 2, 32, 1),
    Sketcher.Constraint("Tangent", 32, 2, 33, 2),
    Sketcher.Constraint("Tangent", 33, 1, 34, 1),
    Sketcher.Constraint("Tangent", 34, 2, 35, 2),
    Sketcher.Constraint("Tangent", 35, 1, 36, 1),
    Sketcher.Constraint("Tangent", 36, 2, 37, 2),
    Sketcher.Constraint("Tangent", 37, 1, 38, 1),
    Sketcher.Constraint("Tangent", 38, 2, 39, 2),
    Sketcher.Constraint("Tangent", 39, 1, 40, 1),
    Sketcher.Constraint("Tangent", 40, 2, 41, 1),
    Sketcher.Constraint("Tangent", 41, 2, 42, 1),
    Sketcher.Constraint("Tangent", 42, 2, 43, 1),
    Sketcher.Constraint("Tangent", 43, 2, 44, 1),
    Sketcher.Constraint("Tangent", 44, 2, 45, 1),
    Sketcher.Constraint("Tangent", 45, 2, 46, 1),
    Sketcher.Constraint("Tangent", 46, 2, 47, 1),
    Sketcher.Constraint("Tangent", 47, 2, 48, 1),
    Sketcher.Constraint("Tangent", 48, 2, 49, 1),
    Sketcher.Constraint("Tangent", 49, 2, 50, 1),
    Sketcher.Constraint("Tangent", 50, 2, 51, 2),
    Sketcher.Constraint("Tangent", 51, 1, 52, 1),
    Sketcher.Constraint("Tangent", 52, 2, 53, 2),
    Sketcher.Constraint("Tangent", 53, 1, 54, 1),
    Sketcher.Constraint("Tangent", 54, 2, 55, 2),
    Sketcher.Constraint("Tangent", 55, 1, 56, 1),
    Sketcher.Constraint("Tangent", 56, 2, 57, 2),
    Sketcher.Constraint("Tangent", 57, 1, 58, 1),
    Sketcher.Constraint("Tangent", 58, 2, 59, 1),
    Sketcher.Constraint("Tangent", 59, 2, 60, 1),
    Sketcher.Constraint("Tangent", 60, 2, 61, 1),
    Sketcher.Constraint("Tangent", 61, 2, 62, 1),
    Sketcher.Constraint("Tangent", 62, 2, 63, 1),
    Sketcher.Constraint("Tangent", 63, 2, 64, 1),
    Sketcher.Constraint("Tangent", 64, 2, 65, 1),
    Sketcher.Constraint("Tangent", 65, 2, 66, 1),
    Sketcher.Constraint("Tangent", 66, 2, 67, 1),
    Sketcher.Constraint("Tangent", 67, 2, 68, 1),
    Sketcher.Constraint("Tangent", 68, 2, 69, 2),
    Sketcher.Constraint("Tangent", 69, 1, 70, 1),
    Sketcher.Constraint("Tangent", 70, 2, 71, 2),
    Sketcher.Constraint("Tangent", 71, 1, 0, 1),
    Sketcher.Constraint("Horizontal", 0),
    Sketcher.Constraint("Vertical", 18),
    Sketcher.Constraint("Horizontal", 36),
    Sketcher.Constraint("Vertical", 54),
    Sketcher.Constraint("Coincident", 72, 3, -1, 1),
    Sketcher.Constraint("Equal", 5, 7),
    Sketcher.Constraint("Equal", 7, 11),
    Sketcher.Constraint("Equal", 11, 13),
    Sketcher.Constraint("Equal", 3, 15),
    Sketcher.Constraint("Equal", 1, 17),
    Sketcher.Constraint("Equal", 17, 19),
    Sketcher.Constraint("Equal", 15, 21),
    Sketcher.Constraint("Equal", 13, 23),
    Sketcher.Constraint("Equal", 23, 25),
    Sketcher.Constraint("Equal", 9, 27),
    Sketcher.Constraint("Equal", 25, 29),
    Sketcher.Constraint("Equal", 29, 31),
    Sketcher.Constraint("Equal", 21, 33),
    Sketcher.Constraint("Equal", 19, 35),
    Sketcher.Constraint("Equal", 35, 37),
    Sketcher.Constraint("Equal", 33, 39),
    Sketcher.Constraint("Equal", 31, 41),
    Sketcher.Constraint("Equal", 41, 43),
    Sketcher.Constraint("Equal", 27, 45),
    Sketcher.Constraint("Equal", 43, 47),
    Sketcher.Constraint("Equal", 47, 49),
    Sketcher.Constraint("Equal", 39, 51),
    Sketcher.Constraint("Equal", 37, 53),
    Sketcher.Constraint("Equal", 53, 55),
    Sketcher.Constraint("Equal", 51, 57),
    Sketcher.Constraint("Equal", 49, 59),
    Sketcher.Constraint("Equal", 59, 61),
    Sketcher.Constraint("Equal", 45, 63),
    Sketcher.Constraint("Equal", 61, 65),
    Sketcher.Constraint("Equal", 65, 67),
    Sketcher.Constraint("Equal", 57, 69),
    Sketcher.Constraint("Equal", 55, 71),
    Sketcher.Constraint("Symmetric", 1, 3, 37, 3, -1, 1),
    Sketcher.Constraint("Symmetric", 3, 3, 39, 3, -1, 1),
    Sketcher.Constraint("Symmetric", 5, 3, 41, 3, -1, 1),
    Sketcher.Constraint("Symmetric", 7, 3, 43, 3, -1, 1),
    Sketcher.Constraint("Symmetric", 9, 3, 45, 3, -1, 1),
    Sketcher.Constraint("Symmetric", 11, 3, 47, 3, -1, 1),
    Sketcher.Constraint("Symmetric", 13, 3, 49, 3, -1, 1),
    Sketcher.Constraint("Symmetric", 15, 3, 51, 3, -1, 1),
    Sketcher.Constraint("Symmetric", 17, 3, 53, 3, -1, 1),
    Sketcher.Constraint("Symmetric", 21, 3, 57, 3, -1, 1),
    Sketcher.Constraint("Symmetric", 23, 3, 59, 3, -1, 1),
    Sketcher.Constraint("Symmetric", 25, 3, 61, 3, -1, 1),
    Sketcher.Constraint("Symmetric", 27, 3, 63, 3, -1, 1),
    Sketcher.Constraint("Symmetric", 29, 3, 65, 3, -1, 1),
    Sketcher.Constraint("Symmetric", 31, 3, 67, 3, -1, 1),
    Sketcher.Constraint("Symmetric", 33, 3, 69, 3, -1, 1),
    Sketcher.Constraint("Symmetric", 33, 3, 39, 3, -2),
    Sketcher.Constraint("Symmetric", 31, 3, 41, 3, -2),
    Sketcher.Constraint("Symmetric", 29, 3, 43, 3, -2),
    Sketcher.Constraint("Symmetric", 27, 3, 45, 3, -2),
    Sketcher.Constraint("Symmetric", 25, 3, 47, 3, -2),
    Sketcher.Constraint("Symmetric", 23, 3, 49, 3, -2),
    Sketcher.Constraint("Symmetric", 21, 3, 51, 3, -2),
    Sketcher.Constraint("Perpendicular", 4, 6),
    Sketcher.Constraint("Perpendicular", 6, 8),
    Sketcher.Constraint("Perpendicular", 10, 12),
    Sketcher.Constraint("Perpendicular", 12, 14),
    Sketcher.Constraint("Parallel", 2, 16),
    Sketcher.Constraint("Perpendicular", 16, 20),
    Sketcher.Constraint("Perpendicular", 8, 22),
    Sketcher.Constraint("Parallel", 20, 34),
    Sketcher.Constraint("Perpendicular", 52, 56),
    Sketcher.Constraint("Parallel", 56, 70),
    Sketcher.Constraint("Horizontal", 19, 3, 53, 3),
    Sketcher.Constraint("Equal", 36, 18),
    Sketcher.Constraint("Equal", 8, 10),
    Sketcher.Constraint("Equal", 6, 12),
    Sketcher.Constraint("Equal", 4, 14),
    Sketcher.Constraint("Equal", 2, 16),
    Sketcher.Constraint("Diameter", 72, Q("0.2 in")),
    Sketcher.Constraint("Radius", 5, Q("0.03 in")),
    Sketcher.Constraint("Radius", 9, Q("0.08 in")),
    Sketcher.Constraint("Angle", 4, Q("-2 deg")),
    Sketcher.Constraint("Radius", 1, Q("0.125 in")),
    Sketcher.Constraint("DistanceX", 9, 3, -1, 1, Q("0.42 in")),
    Sketcher.Constraint("Distance", 6, Q("0.023 in")),
    Sketcher.Constraint("DistanceY", -1, 1, 1, 3, Q("0.3125 in")),
    Sketcher.Constraint("Radius", 3, 0.763339),
    Sketcher.Constraint("DistanceX", 7, 3, -1, 1, Q("0.1575 in")),
    Sketcher.Constraint("Distance", 2, 4.90697),
])
sketch2.setExpression("Constraints[148]", "Params.sketch2_diameter")
sketch2.setExpression("Constraints[149]", "Params.sketch2_radius")
sketch2.setExpression("Constraints[150]", "Params.sketch2_radius2")
sketch2.setExpression("Constraints[152]", "Params.sketch2_radius3")
sketch2.setExpression("Constraints[154]", "Params.sketch2_length")
pad2 = body.newObject("PartDesign::Pad", "Pad001")
pad2.Profile = sketch2
pad2.setExpression("Length", "Params.pad2_length")
pad2.Reversed = True

doc.recompute()
